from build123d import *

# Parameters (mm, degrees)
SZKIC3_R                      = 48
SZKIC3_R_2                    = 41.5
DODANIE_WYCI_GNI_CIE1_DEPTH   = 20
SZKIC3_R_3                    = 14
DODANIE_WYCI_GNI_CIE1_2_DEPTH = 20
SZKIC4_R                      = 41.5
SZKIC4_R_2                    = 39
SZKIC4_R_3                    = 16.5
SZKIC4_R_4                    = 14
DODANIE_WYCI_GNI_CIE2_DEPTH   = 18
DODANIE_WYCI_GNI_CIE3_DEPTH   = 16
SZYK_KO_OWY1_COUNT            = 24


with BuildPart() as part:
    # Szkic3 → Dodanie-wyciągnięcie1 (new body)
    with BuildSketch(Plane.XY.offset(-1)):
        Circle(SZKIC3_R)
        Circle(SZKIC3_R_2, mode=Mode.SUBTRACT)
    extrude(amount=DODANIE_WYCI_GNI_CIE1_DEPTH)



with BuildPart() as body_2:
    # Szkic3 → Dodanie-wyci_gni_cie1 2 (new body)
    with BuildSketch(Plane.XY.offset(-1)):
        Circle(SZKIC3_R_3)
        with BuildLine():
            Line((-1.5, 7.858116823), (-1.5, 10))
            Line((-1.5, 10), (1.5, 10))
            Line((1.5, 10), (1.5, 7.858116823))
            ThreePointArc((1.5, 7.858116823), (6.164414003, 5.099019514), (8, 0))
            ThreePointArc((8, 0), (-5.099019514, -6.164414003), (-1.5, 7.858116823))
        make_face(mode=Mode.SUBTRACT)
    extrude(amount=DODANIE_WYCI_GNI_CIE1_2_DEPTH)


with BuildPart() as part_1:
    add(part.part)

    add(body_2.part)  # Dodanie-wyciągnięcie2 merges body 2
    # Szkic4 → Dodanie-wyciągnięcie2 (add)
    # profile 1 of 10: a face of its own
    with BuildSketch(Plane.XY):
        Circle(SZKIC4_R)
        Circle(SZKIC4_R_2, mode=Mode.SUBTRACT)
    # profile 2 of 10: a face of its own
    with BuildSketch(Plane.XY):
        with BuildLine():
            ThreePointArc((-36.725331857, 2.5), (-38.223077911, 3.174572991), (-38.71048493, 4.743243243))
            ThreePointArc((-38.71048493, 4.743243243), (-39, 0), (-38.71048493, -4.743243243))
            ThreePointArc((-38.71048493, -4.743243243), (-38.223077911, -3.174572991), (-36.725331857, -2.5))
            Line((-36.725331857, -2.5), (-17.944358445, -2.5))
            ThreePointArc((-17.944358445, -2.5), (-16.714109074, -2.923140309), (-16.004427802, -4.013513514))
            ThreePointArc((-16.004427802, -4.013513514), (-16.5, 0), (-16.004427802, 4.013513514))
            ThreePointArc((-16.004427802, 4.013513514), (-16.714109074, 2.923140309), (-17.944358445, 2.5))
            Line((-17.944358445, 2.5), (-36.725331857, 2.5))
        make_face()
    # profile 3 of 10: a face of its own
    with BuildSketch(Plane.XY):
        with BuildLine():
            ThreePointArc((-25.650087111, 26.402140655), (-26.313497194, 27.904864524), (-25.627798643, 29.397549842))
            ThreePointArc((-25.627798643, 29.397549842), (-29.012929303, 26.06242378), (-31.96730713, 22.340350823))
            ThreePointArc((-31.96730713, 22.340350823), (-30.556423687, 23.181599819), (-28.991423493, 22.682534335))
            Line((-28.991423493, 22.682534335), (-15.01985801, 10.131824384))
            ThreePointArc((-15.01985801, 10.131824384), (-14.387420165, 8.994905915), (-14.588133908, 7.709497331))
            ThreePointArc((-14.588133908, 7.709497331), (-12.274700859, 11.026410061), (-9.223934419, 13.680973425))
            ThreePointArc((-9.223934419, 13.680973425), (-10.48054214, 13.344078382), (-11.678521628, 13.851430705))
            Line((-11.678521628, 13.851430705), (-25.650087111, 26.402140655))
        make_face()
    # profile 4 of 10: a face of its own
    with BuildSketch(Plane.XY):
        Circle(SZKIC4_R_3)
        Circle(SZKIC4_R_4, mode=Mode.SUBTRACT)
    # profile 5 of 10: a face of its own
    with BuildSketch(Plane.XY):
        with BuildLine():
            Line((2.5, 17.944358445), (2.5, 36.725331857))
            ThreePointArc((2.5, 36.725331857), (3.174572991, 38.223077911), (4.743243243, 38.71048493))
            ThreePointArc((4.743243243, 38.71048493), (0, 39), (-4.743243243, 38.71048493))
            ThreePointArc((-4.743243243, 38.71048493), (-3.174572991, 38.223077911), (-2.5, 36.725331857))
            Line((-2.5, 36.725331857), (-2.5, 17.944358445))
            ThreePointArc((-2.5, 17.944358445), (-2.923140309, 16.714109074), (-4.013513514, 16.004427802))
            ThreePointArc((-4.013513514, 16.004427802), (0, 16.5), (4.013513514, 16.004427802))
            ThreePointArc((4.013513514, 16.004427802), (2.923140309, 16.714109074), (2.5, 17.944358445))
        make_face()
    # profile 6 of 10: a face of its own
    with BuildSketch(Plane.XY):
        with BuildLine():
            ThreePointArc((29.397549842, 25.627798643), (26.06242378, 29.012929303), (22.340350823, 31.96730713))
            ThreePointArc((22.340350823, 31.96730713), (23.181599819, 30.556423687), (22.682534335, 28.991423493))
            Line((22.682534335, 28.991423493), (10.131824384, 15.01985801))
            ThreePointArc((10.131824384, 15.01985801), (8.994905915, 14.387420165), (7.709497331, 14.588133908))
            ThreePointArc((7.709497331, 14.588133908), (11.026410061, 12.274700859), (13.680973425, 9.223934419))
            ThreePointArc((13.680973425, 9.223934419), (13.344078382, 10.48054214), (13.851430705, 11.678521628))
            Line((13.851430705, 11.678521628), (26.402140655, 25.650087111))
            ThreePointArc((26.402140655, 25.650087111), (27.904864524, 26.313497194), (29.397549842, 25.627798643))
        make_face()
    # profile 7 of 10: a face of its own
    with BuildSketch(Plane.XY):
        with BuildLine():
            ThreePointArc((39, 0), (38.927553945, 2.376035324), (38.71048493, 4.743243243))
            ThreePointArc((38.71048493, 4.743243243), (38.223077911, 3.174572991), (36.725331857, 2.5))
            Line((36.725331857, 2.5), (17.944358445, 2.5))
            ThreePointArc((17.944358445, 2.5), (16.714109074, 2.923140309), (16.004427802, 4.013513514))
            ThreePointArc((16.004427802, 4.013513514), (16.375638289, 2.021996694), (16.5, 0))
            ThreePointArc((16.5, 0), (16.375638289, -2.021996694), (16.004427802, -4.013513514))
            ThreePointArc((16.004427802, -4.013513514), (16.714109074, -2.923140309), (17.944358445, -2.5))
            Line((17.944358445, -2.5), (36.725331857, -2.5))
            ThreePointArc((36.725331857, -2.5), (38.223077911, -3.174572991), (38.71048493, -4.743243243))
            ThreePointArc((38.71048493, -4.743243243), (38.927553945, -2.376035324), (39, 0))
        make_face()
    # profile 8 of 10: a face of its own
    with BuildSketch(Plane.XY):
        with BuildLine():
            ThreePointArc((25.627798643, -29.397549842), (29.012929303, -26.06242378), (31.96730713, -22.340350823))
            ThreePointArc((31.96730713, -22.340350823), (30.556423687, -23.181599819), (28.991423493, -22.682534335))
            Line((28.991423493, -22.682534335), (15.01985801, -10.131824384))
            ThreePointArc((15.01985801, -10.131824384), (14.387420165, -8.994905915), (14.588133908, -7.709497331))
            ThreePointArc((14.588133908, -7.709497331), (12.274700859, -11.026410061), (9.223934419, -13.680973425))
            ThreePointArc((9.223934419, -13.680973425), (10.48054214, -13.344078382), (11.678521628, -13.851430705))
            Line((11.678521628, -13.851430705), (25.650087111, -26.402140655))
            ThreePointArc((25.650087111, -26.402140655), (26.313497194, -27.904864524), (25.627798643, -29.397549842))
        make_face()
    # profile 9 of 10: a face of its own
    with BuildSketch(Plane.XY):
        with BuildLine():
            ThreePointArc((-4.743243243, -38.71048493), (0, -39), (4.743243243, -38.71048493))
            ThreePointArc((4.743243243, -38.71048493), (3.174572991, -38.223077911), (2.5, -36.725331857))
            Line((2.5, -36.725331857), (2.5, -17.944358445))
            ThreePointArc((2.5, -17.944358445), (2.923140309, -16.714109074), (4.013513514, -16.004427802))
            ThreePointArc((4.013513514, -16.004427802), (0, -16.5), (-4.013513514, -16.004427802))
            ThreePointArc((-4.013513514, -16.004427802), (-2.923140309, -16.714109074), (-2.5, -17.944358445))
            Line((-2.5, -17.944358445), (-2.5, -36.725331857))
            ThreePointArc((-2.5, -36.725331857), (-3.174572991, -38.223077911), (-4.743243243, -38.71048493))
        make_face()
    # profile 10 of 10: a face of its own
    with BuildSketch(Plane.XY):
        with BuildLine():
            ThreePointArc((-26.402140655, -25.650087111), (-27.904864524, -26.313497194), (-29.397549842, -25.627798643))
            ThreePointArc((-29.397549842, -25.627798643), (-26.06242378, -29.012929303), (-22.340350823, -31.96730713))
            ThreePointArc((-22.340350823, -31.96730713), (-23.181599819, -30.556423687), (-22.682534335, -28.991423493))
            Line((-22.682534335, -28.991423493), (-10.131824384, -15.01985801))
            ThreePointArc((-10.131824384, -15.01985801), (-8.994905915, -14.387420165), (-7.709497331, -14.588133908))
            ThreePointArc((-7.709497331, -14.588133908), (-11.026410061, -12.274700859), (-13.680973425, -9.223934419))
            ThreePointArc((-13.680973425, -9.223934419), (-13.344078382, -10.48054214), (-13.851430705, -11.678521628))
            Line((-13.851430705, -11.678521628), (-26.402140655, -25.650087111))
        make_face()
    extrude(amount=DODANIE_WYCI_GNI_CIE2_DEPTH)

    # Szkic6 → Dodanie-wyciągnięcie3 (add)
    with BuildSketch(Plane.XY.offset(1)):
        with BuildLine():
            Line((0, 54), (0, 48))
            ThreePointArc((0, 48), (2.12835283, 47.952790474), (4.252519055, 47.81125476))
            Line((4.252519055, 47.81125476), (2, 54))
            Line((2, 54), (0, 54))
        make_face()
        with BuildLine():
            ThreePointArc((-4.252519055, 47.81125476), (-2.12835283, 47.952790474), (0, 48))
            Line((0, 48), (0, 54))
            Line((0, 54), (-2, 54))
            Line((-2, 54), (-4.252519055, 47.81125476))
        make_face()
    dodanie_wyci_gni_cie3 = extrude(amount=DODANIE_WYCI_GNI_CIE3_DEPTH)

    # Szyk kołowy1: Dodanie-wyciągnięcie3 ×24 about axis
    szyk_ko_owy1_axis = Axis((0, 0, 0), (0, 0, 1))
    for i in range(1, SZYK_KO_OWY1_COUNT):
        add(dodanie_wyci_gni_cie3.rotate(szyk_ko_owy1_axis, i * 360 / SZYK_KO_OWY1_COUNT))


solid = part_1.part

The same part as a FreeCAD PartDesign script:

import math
import FreeCAD as App
import Part
import Sketcher
from FreeCAD import Vector
Q = App.Units.Quantity

doc = App.newDocument("Part")
body = doc.addObject("PartDesign::Body", "Body")

# Sketch on XY plane
sketch1 = body.newObject("Sketcher::SketchObject", "Sketch")
sketch1.AttachmentSupport = (doc.getObject("XY_Plane"), [""])
sketch1.MapMode = "FlatFace"
sketch1.AttachmentOffset = App.Placement(Vector(0, 0, -1), App.Rotation())
sketch1.addGeometry([
    Part.Circle(Vector(0, 0, 0), Vector(0, 0, 1), 48),
    Part.Circle(Vector(0, 0, 0), Vector(0, 0, 1), 42),
], False)
sketch1.addConstraint([
    Sketcher.Constraint("Coincident", 0, 3, -1, 1),
    Sketcher.Constraint("Coincident", 1, 3, -1, 1),
    Sketcher.Constraint("Diameter", 0, 96.0),
    Sketcher.Constraint("Diameter", 1, 83.0),
])
pad1 = body.newObject("PartDesign::Pad", "Pad")
pad1.Profile = sketch1
pad1.Length = 20
body2 = doc.addObject("PartDesign::Body", "Body001")

# Sketch on XY plane
sketch2 = body2.newObject("Sketcher::SketchObject", "Sketch001")
sketch2.AttachmentSupport = (doc.getObject("XY_Plane001"), [""])
sketch2.MapMode = "FlatFace"
sketch2.AttachmentOffset = App.Placement(Vector(0, 0, -1), App.Rotation())
sketch2.addGeometry([
    Part.Circle(Vector(0, 0, 0), Vector(0, 0, 1), 14),  # 0
    Part.ArcOfCircle(Part.Circle(Vector(0, 0, 0), Vector(0, 0, 1), 8), math.radians(101), math.radians(360)),  # 1
    Part.LineSegment(Vector(-1.5, 7.9, 0), Vector(-1.5, 10, 0)),  # 2
    Part.LineSegment(Vector(-1.5, 10, 0), Vector(1.5, 10, 0)),  # 3
    Part.LineSegment(Vector(1.5, 10, 0), Vector(1.5, 7.9, 0)),  # 4
    Part.ArcOfCircle(Part.Circle(Vector(0, 0, 0), Vector(0, 0, 1), 8), math.radians(0), math.radians(79)),  # 5
], False)
sketch2.addConstraint([
    Sketcher.Constraint("Coincident", 1, 1, 2, 1),
    Sketcher.Constraint("Coincident", 2, 2, 3, 1),
    Sketcher.Constraint("Coincident", 3, 2, 4, 1),
    Sketcher.Constraint("Coincident", 4, 2, 5, 2),
    Sketcher.Constraint("Tangent", 5, 1, 1, 2),
    Sketcher.Constraint("Vertical", 2),
    Sketcher.Constraint("Horizontal", 3),
    Sketcher.Constraint("Vertical", 4),
    Sketcher.Constraint("Coincident", 0, 3, -1, 1),
    Sketcher.Constraint("Coincident", 1, 3, -1, 1),
    Sketcher.Constraint("Equal", 1, 5),
    Sketcher.Constraint("PointOnObject", 5, 1, -1),
    Sketcher.Constraint("Horizontal", 1, 1, 4, 2),
    Sketcher.Constraint("Diameter", 0, 28.0),
    Sketcher.Constraint("Radius", 1, 8.0),
    Sketcher.Constraint("DistanceX", 3, 1, 3, 2, 3.0),
    Sketcher.Constraint("DistanceY", -1, 1, 2, 2, 10.0),
])
pad2 = body2.newObject("PartDesign::Pad", "Pad001")
pad2.Profile = sketch2
pad2.Length = 20
body.AllowCompound = True
doc.recompute()

boolean = body.newObject("PartDesign::Boolean", "Boolean")
boolean.Type = "Fuse"
boolean.addObjects([body2])

# Sketch on XY plane
sketch3 = body.newObject("Sketcher::SketchObject", "Sketch002")
sketch3.AttachmentSupport = (doc.getObject("XY_Plane"), [""])
sketch3.MapMode = "FlatFace"
sketch3.addGeometry([
    Part.Circle(Vector(0, 0, 0), Vector(0, 0, 1), 41.5),  # 0
    Part.ArcOfCircle(Part.Circle(Vector(0, 0, 0), Vector(0, 0, 1), 39), math.radians(7), math.radians(41)),  # 1
    Part.ArcOfCircle(Part.Circle(Vector(36.7, 4.5, 0), Vector(0, 0, 1), 2), math.radians(-90), math.radians(7)),  # 2
    Part.LineSegment(Vector(36.7, 2.5, 0), Vector(17.9, 2.5, 0)),  # 3
    Part.ArcOfCircle(Part.Circle(Vector(17.9, 4.5, 0), Vector(0, 0, 1), 2), math.radians(-166), math.radians(-90)),  # 4
    Part.ArcOfCircle(Part.Circle(Vector(0, 0, 0), Vector(0, 0, 1), 16.5), math.radians(14.08), math.radians(33.99)),  # 5
    Part.ArcOfCircle(Part.Circle(Vector(15.3, 10.3, 0), Vector(0, 0, 1), 2), math.radians(138), math.radians(214)),  # 6
    Part.LineSegment(Vector(13.9, 11.7, 0), Vector(26.4, 25.7, 0)),  # 7
    Part.ArcOfCircle(Part.Circle(Vector(27.9, 24.3, 0), Vector(0, 0, 1), 2), math.radians(41), math.radians(138)),  # 8
    Part.ArcOfCircle(Part.Circle(Vector(0, 0, 0), Vector(0, 0, 1), 39), math.radians(55), math.radians(83)),  # 9
    Part.ArcOfCircle(Part.Circle(Vector(21.2, 30.3, 0), Vector(0, 0, 1), 2), math.radians(-42), math.radians(55)),  # 10
    Part.LineSegment(Vector(22.7, 29, 0), Vector(10.1, 15, 0)),  # 11
    Part.ArcOfCircle(Part.Circle(Vector(8.6, 16.4, 0), Vector(0, 0, 1), 2), math.radians(-118), math.radians(-42)),  # 12
    Part.ArcOfCircle(Part.Circle(Vector(0, 0, 0), Vector(0, 0, 1), 16.5), math.radians(62.14), math.radians(75.92)),  # 13
    Part.ArcOfCircle(Part.Circle(Vector(4.5, 17.9, 0), Vector(0, 0, 1), 2), math.radians(180), math.radians(256)),  # 14
    Part.LineSegment(Vector(2.5, 17.9, 0), Vector(2.5, 36.7, 0)),  # 15
    Part.ArcOfCircle(Part.Circle(Vector(4.5, 36.7, 0), Vector(0, 0, 1), 2), math.radians(83), math.radians(180)),  # 16
    Part.ArcOfCircle(Part.Circle(Vector(0, 0, 0), Vector(0, 0, 1), 39), math.radians(97), math.radians(131)),  # 17
    Part.ArcOfCircle(Part.Circle(Vector(-4.5, 36.7, 0), Vector(0, 0, 1), 2), math.radians(0), math.radians(97)),  # 18
    Part.LineSegment(Vector(-2.5, 36.7, 0), Vector(-2.5, 17.9, 0)),  # 19
    Part.ArcOfCircle(Part.Circle(Vector(-4.5, 17.9, 0), Vector(0, 0, 1), 2), math.radians(-76), math.radians(0)),  # 20
    Part.ArcOfCircle(Part.Circle(Vector(0, 0, 0), Vector(0, 0, 1), 16.5), math.radians(104.08), math.radians(123.99)),  # 21
    Part.ArcOfCircle(Part.Circle(Vector(-10.3, 15.3, 0), Vector(0, 0, 1), 2), math.radians(-132), math.radians(-56)),  # 22
    Part.LineSegment(Vector(-11.7, 13.9, 0), Vector(-25.7, 26.4, 0)),  # 23
    Part.ArcOfCircle(Part.Circle(Vector(-24.3, 27.9, 0), Vector(0, 0, 1), 2), math.radians(131), math.radians(228)),  # 24
    Part.ArcOfCircle(Part.Circle(Vector(0, 0, 0), Vector(0, 0, 1), 39), math.radians(145), math.radians(173)),  # 25
    Part.ArcOfCircle(Part.Circle(Vector(-30.3, 21.2, 0), Vector(0, 0, 1), 2), math.radians(48), math.radians(145)),  # 26
    Part.LineSegment(Vector(-29, 22.7, 0), Vector(-15, 10.1, 0)),  # 27
    Part.ArcOfCircle(Part.Circle(Vector(-16.4, 8.6, 0), Vector(0, 0, 1), 2), math.radians(-28), math.radians(48)),  # 28
    Part.ArcOfCircle(Part.Circle(Vector(0, 0, 0), Vector(0, 0, 1), 16.5), math.radians(152.14), math.radians(165.92)),  # 29
    Part.ArcOfCircle(Part.Circle(Vector(-17.9, 4.5, 0), Vector(0, 0, 1), 2), math.radians(-90), math.radians(-14)),  # 30
    Part.LineSegment(Vector(-17.9, 2.5, 0), Vector(-36.7, 2.5, 0)),  # 31
    Part.ArcOfCircle(Part.Circle(Vector(-36.7, 4.5, 0), Vector(0, 0, 1), 2), math.radians(173), math.radians(270)),  # 32
    Part.ArcOfCircle(Part.Circle(Vector(0, 0, 0), Vector(0, 0, 1), 39), math.radians(-173), math.radians(-139)),  # 33
    Part.ArcOfCircle(Part.Circle(Vector(-36.7, -4.5, 0), Vector(0, 0, 1), 2), math.radians(90), math.radians(187)),  # 34
    Part.LineSegment(Vector(-36.7, -2.5, 0), Vector(-17.9, -2.5, 0)),  # 35
    Part.ArcOfCircle(Part.Circle(Vector(-17.9, -4.5, 0), Vector(0, 0, 1), 2), math.radians(14), math.radians(90)),  # 36
    Part.ArcOfCircle(Part.Circle(Vector(0, 0, 0), Vector(0, 0, 1), 16.5), math.radians(-165.92), math.radians(-146.01)),  # 37
    Part.ArcOfCircle(Part.Circle(Vector(-15.3, -10.3, 0), Vector(0, 0, 1), 2), math.radians(-42), math.radians(34)),  # 38
    Part.LineSegment(Vector(-13.9, -11.7, 0), Vector(-26.4, -25.7, 0)),  # 39
    Part.ArcOfCircle(Part.Circle(Vector(-27.9, -24.3, 0), Vector(0, 0, 1), 2), math.radians(-139), math.radians(-42)),  # 40
    Part.ArcOfCircle(Part.Circle(Vector(0, 0, 0), Vector(0, 0, 1), 39), math.radians(-125), math.radians(-97)),  # 41
    Part.ArcOfCircle(Part.Circle(Vector(-21.2, -30.3, 0), Vector(0, 0, 1), 2), math.radians(138), math.radians(235)),  # 42
    Part.LineSegment(Vector(-22.7, -29, 0), Vector(-10.1, -15, 0)),  # 43
    Part.ArcOfCircle(Part.Circle(Vector(-8.6, -16.4, 0), Vector(0, 0, 1), 2), math.radians(62), math.radians(138)),  # 44
    Part.ArcOfCircle(Part.Circle(Vector(0, 0, 0), Vector(0, 0, 1), 16.5), math.radians(-117.86), math.radians(-104.08)),  # 45
    Part.ArcOfCircle(Part.Circle(Vector(-4.5, -17.9, 0), Vector(0, 0, 1), 2), math.radians(0), math.radians(76)),  # 46
    Part.LineSegment(Vector(-2.5, -17.9, 0), Vector(-2.5, -36.7, 0)),  # 47
    Part.ArcOfCircle(Part.Circle(Vector(-4.5, -36.7, 0), Vector(0, 0, 1), 2), math.radians(-97), math.radians(0)),  # 48
    Part.ArcOfCircle(Part.Circle(Vector(0, 0, 0), Vector(0, 0, 1), 39), math.radians(-83), math.radians(-49)),  # 49
    Part.ArcOfCircle(Part.Circle(Vector(4.5, -36.7, 0), Vector(0, 0, 1), 2), math.radians(-180), math.radians(-83)),  # 50
    Part.LineSegment(Vector(2.5, -36.7, 0), Vector(2.5, -17.9, 0)),  # 51
    Part.ArcOfCircle(Part.Circle(Vector(4.5, -17.9, 0), Vector(0, 0, 1), 2), math.radians(104), math.radians(180)),  # 52
    Part.ArcOfCircle(Part.Circle(Vector(0, 0, 0), Vector(0, 0, 1), 16.5), math.radians(-75.92), math.radians(-56.01)),  # 53
    Part.ArcOfCircle(Part.Circle(Vector(10.3, -15.3, 0), Vector(0, 0, 1), 2), math.radians(48), math.radians(124)),  # 54
    Part.LineSegment(Vector(11.7, -13.9, 0), Vector(25.7, -26.4, 0)),  # 55
    Part.ArcOfCircle(Part.Circle(Vector(24.3, -27.9, 0), Vector(0, 0, 1), 2), math.radians(-49), math.radians(48)),  # 56
    Part.ArcOfCircle(Part.Circle(Vector(0, 0, 0), Vector(0, 0, 1), 39), math.radians(-35), math.radians(-7)),  # 57
    Part.ArcOfCircle(Part.Circle(Vector(30.3, -21.2, 0), Vector(0, 0, 1), 2), math.radians(-132), math.radians(-35)),  # 58
    Part.LineSegment(Vector(29, -22.7, 0), Vector(15, -10.1, 0)),  # 59
    Part.ArcOfCircle(Part.Circle(Vector(16.4, -8.6, 0), Vector(0, 0, 1), 2), math.radians(152), math.radians(228)),  # 60
    Part.ArcOfCircle(Part.Circle(Vector(0, 0, 0), Vector(0, 0, 1), 16.5), math.radians(-27.86), math.radians(-14.08)),  # 61
    Part.ArcOfCircle(Part.Circle(Vector(17.9, -4.5, 0), Vector(0, 0, 1), 2), math.radians(90), math.radians(166)),  # 62
    Part.LineSegment(Vector(17.9, -2.5, 0), Vector(36.7, -2.5, 0)),  # 63
    Part.ArcOfCircle(Part.Circle(Vector(36.7, -4.5, 0), Vector(0, 0, 1), 2), math.radians(-7), math.radians(90)),  # 64
    Part.Circle(Vector(0, 0, 0), Vector(0, 0, 1), 14),  # 65
], False)
sketch3.addConstraint([
    Sketcher.Constraint("Tangent", 1, 1, 2, 2),
    Sketcher.Constraint("Tangent", 2, 1, 3, 1),
    Sketcher.Constraint("Tangent", 3, 2, 4, 2),
    Sketcher.Constraint("Tangent", 4, 1, 5, 1),
    Sketcher.Constraint("Tangent", 5, 2, 6, 2),
    Sketcher.Constraint("Tangent", 6, 1, 7, 1),
    Sketcher.Constraint("Tangent", 7, 2, 8, 2),
    Sketcher.Constraint("Tangent", 8, 1, 1, 2),
    Sketcher.Constraint("Tangent", 9, 1, 10, 2),
    Sketcher.Constraint("Tangent", 10, 1, 11, 1),
    Sketcher.Constraint("Tangent", 11, 2, 12, 2),
    Sketcher.Constraint("Tangent", 12, 1, 13, 1),
    Sketcher.Constraint("Tangent", 13, 2, 14, 2),
    Sketcher.Constraint("Tangent", 14, 1, 15, 1),
    Sketcher.Constraint("Tangent", 15, 2, 16, 2),
    Sketcher.Constraint("Tangent", 16, 1, 9, 2),
    Sketcher.Constraint("Tangent", 17, 1, 18, 2),
    Sketcher.Constraint("Tangent", 18, 1, 19, 1),
    Sketcher.Constraint("Tangent", 19, 2, 20, 2),
    Sketcher.Constraint("Tangent", 20, 1, 21, 1),
    Sketcher.Constraint("Tangent", 21, 2, 22, 2),
    Sketcher.Constraint("Tangent", 22, 1, 23, 1),
    Sketcher.Constraint("Tangent", 23, 2, 24, 2),
    Sketcher.Constraint("Tangent", 24, 1, 17, 2),
    Sketcher.Constraint("Tangent", 25, 1, 26, 2),
    Sketcher.Constraint("Tangent", 26, 1, 27, 1),
    Sketcher.Constraint("Tangent", 27, 2, 28, 2),
    Sketcher.Constraint("Tangent", 28, 1, 29, 1),
    Sketcher.Constraint("Tangent", 29, 2, 30, 2),
    Sketcher.Constraint("Tangent", 30, 1, 31, 1),
    Sketcher.Constraint("Tangent", 31, 2, 32, 2),
    Sketcher.Constraint("Tangent", 32, 1, 25, 2),
    Sketcher.Constraint("Tangent", 33, 1, 34, 2),
    Sketcher.Constraint("Tangent", 34, 1, 35, 1),
    Sketcher.Constraint("Tangent", 35, 2, 36, 2),
    Sketcher.Constraint("Tangent", 36, 1, 37, 1),
    Sketcher.Constraint("Tangent", 37, 2, 38, 2),
    Sketcher.Constraint("Tangent", 38, 1, 39, 1),
    Sketcher.Constraint("Tangent", 39, 2, 40, 2),
    Sketcher.Constraint("Tangent", 40, 1, 33, 2),
    Sketcher.Constraint("Tangent", 41, 1, 42, 2),
    Sketcher.Constraint("Tangent", 42, 1, 43, 1),
    Sketcher.Constraint("Tangent", 43, 2, 44, 2),
    Sketcher.Constraint("Tangent", 44, 1, 45, 1),
    Sketcher.Constraint("Tangent", 45, 2, 46, 2),
    Sketcher.Constraint("Tangent", 46, 1, 47, 1),
    Sketcher.Constraint("Tangent", 47, 2, 48, 2),
    Sketcher.Constraint("Tangent", 48, 1, 41, 2),
    Sketcher.Constraint("Tangent", 49, 1, 50, 2),
    Sketcher.Constraint("Tangent", 50, 1, 51, 1),
    Sketcher.Constraint("Tangent", 51, 2, 52, 2),
    Sketcher.Constraint("Tangent", 52, 1, 53, 1),
    Sketcher.Constraint("Tangent", 53, 2, 54, 2),
    Sketcher.Constraint("Tangent", 54, 1, 55, 1),
    Sketcher.Constraint("Tangent", 55, 2, 56, 2),
    Sketcher.Constraint("Tangent", 56, 1, 49, 2),
    Sketcher.Constraint("Tangent", 57, 1, 58, 2),
    Sketcher.Constraint("Tangent", 58, 1, 59, 1),
    Sketcher.Constraint("Tangent", 59, 2, 60, 2),
    Sketcher.Constraint("Tangent", 60, 1, 61, 1),
    Sketcher.Constraint("Tangent", 61, 2, 62, 2),
    Sketcher.Constraint("Tangent", 62, 1, 63, 1),
    Sketcher.Constraint("Tangent", 63, 2, 64, 2),
    Sketcher.Constraint("Tangent", 64, 1, 57, 2),
    Sketcher.Constraint("Horizontal", 3),
    Sketcher.Constraint("Vertical", 15),
    Sketcher.Constraint("Vertical", 19),
    Sketcher.Constraint("Horizontal", 31),
    Sketcher.Constraint("Horizontal", 35),
    Sketcher.Constraint("Vertical", 47),
    Sketcher.Constraint("Vertical", 51),
    Sketcher.Constraint("Horizontal", 63),
    Sketcher.Constraint("Coincident", 0, 3, -1, 1),
    Sketcher.Constraint("Coincident", 1, 3, -1, 1),
    Sketcher.Constraint("Coincident", 5, 3, -1, 1),
    Sketcher.Constraint("Coincident", 9, 3, -1, 1),
    Sketcher.Constraint("Coincident", 13, 3, -1, 1),
    Sketcher.Constraint("Coincident", 17, 3, -1, 1),
    Sketcher.Constraint("Coincident", 21, 3, -1, 1),
    Sketcher.Constraint("Coincident", 25, 3, -1, 1),
    Sketcher.Constraint("Coincident", 29, 3, -1, 1),
    Sketcher.Constraint("Coincident", 33, 3, -1, 1),
    Sketcher.Constraint("Coincident", 37, 3, -1, 1),
    Sketcher.Constraint("Coincident", 41, 3, -1, 1),
    Sketcher.Constraint("Coincident", 45, 3, -1, 1),
    Sketcher.Constraint("Coincident", 49, 3, -1, 1),
    Sketcher.Constraint("Coincident", 53, 3, -1, 1),
    Sketcher.Constraint("Coincident", 57, 3, -1, 1),
    Sketcher.Constraint("Coincident", 61, 3, -1, 1),
    Sketcher.Constraint("Coincident", 65, 3, -1, 1),
    Sketcher.Constraint("Equal", 2, 4),
    Sketcher.Constraint("Equal", 4, 6),
    Sketcher.Constraint("Equal", 6, 8),
    Sketcher.Constraint("Equal", 1, 9),
    Sketcher.Constraint("Equal", 8, 10),
    Sketcher.Constraint("Equal", 10, 12),
    Sketcher.Constraint("Equal", 5, 13),
    Sketcher.Constraint("Equal", 12, 14),
    Sketcher.Constraint("Equal", 14, 16),
    Sketcher.Constraint("Equal", 9, 17),
    Sketcher.Constraint("Equal", 16, 18),
    Sketcher.Constraint("Equal", 18, 20),
    Sketcher.Constraint("Equal", 13, 21),
    Sketcher.Constraint("Equal", 20, 22),
    Sketcher.Constraint("Equal", 22, 24),
    Sketcher.Constraint("Equal", 17, 25),
    Sketcher.Constraint("Equal", 24, 26),
    Sketcher.Constraint("Equal", 26, 28),
    Sketcher.Constraint("Equal", 21, 29),
    Sketcher.Constraint("Equal", 28, 30),
    Sketcher.Constraint("Equal", 30, 32),
    Sketcher.Constraint("Equal", 25, 33),
    Sketcher.Constraint("Equal", 32, 34),
    Sketcher.Constraint("Equal", 34, 36),
    Sketcher.Constraint("Equal", 29, 37),
    Sketcher.Constraint("Equal", 36, 38),
    Sketcher.Constraint("Equal", 38, 40),
    Sketcher.Constraint("Equal", 33, 41),
    Sketcher.Constraint("Equal", 40, 42),
    Sketcher.Constraint("Equal", 42, 44),
    Sketcher.Constraint("Equal", 37, 45),
    Sketcher.Constraint("Equal", 44, 46),
    Sketcher.Constraint("Equal", 46, 48),
    Sketcher.Constraint("Equal", 41, 49),
    Sketcher.Constraint("Equal", 48, 50),
    Sketcher.Constraint("Equal", 50, 52),
    Sketcher.Constraint("Equal", 45, 53),
    Sketcher.Constraint("Equal", 52, 54),
    Sketcher.Constraint("Equal", 54, 56),
    Sketcher.Constraint("Equal", 49, 57),
    Sketcher.Constraint("Equal", 56, 58),
    Sketcher.Constraint("Equal", 58, 60),
    Sketcher.Constraint("Equal", 53, 61),
    Sketcher.Constraint("Equal", 60, 62),
    Sketcher.Constraint("Equal", 62, 64),
    Sketcher.Constraint("Symmetric", 6, 1, 38, 1, -1, 1),
    Sketcher.Constraint("Symmetric", 10, 1, 42, 1, -1, 1),
    Sketcher.Constraint("Symmetric", 22, 1, 54, 1, -1, 1),
    Sketcher.Constraint("Symmetric", 26, 1, 58, 1, -1, 1),
    Sketcher.Constraint("Parallel", 7, 11),
    Sketcher.Constraint("Perpendicular", 11, 23),
    Sketcher.Constraint("Parallel", 23, 27),
    Sketcher.Constraint("Horizontal", 16, 3, 18, 3),
    Sketcher.Constraint("Horizontal", 4, 3, 30, 3),
    Sketcher.Constraint("Horizontal", 48, 3, 50, 3),
    Sketcher.Constraint("Horizontal", 36, 3, 62, 3),
    Sketcher.Constraint("Vertical", 32, 3, 34, 3),
    Sketcher.Constraint("Vertical", 20, 3, 46, 3),
    Sketcher.Constraint("Equal", 63, 15),
    Sketcher.Constraint("Equal", 7, 11),
    Sketcher.Constraint("Equal", 11, 23),
    Sketcher.Constraint("Equal", 23, 27),
    Sketcher.Constraint("Diameter", 0, 83.0),
    Sketcher.Constraint("Diameter", 65, 28.0),
    Sketcher.Constraint("Radius", 1, 39.0),
    Sketcher.Constraint("Radius", 2, 2.0),
    Sketcher.Constraint("Radius", 5, 16.5),
    Sketcher.Constraint("DistanceY", -1, 1, 2, 3, 4.5),
    Sketcher.Constraint("DistanceY", -1, 1, 8, 1, 25.627799),
    Sketcher.Constraint("DistanceX", -1, 1, 10, 3, 21.194692),
])
pad3 = body.newObject("PartDesign::Pad", "Pad002")
pad3.Profile = sketch3
pad3.Length = 18

# Sketch on XY plane
sketch4 = body.newObject("Sketcher::SketchObject", "Sketch003")
sketch4.AttachmentSupport = (doc.getObject("XY_Plane"), [""])
sketch4.MapMode = "FlatFace"
sketch4.AttachmentOffset = App.Placement(Vector(0, 0, 1), App.Rotation())
sketch4.addGeometry([
    Part.ArcOfCircle(Part.Circle(Vector(0, 0, 0), Vector(0, 0, 1), 48), math.radians(84.92), math.radians(90)),  # 0
    Part.LineSegment(Vector(4.3, 47.8, 0), Vector(2, 54, 0)),  # 1
    Part.LineSegment(Vector(2, 54, 0), Vector(-2, 54, 0)),  # 2
    Part.LineSegment(Vector(-2, 54, 0), Vector(-4.3, 47.8, 0)),  # 3
    Part.ArcOfCircle(Part.Circle(Vector(0, 0, 0), Vector(0, 0, 1), 48), math.radians(90), math.radians(95.08)),  # 4
], False)
sketch4.addConstraint([
    Sketcher.Constraint("Coincident", 0, 1, 1, 1),
    Sketcher.Constraint("Coincident", 1, 2, 2, 1),
    Sketcher.Constraint("Coincident", 2, 2, 3, 1),
    Sketcher.Constraint("Coincident", 3, 2, 4, 2),
    Sketcher.Constraint("Tangent", 4, 1, 0, 2),
    Sketcher.Constraint("Horizontal", 2),
    Sketcher.Constraint("Coincident", 0, 3, -1, 1),
    Sketcher.Constraint("Equal", 0, 4),
    Sketcher.Constraint("PointOnObject", 4, 1, -2),
    Sketcher.Constraint("Horizontal", 0, 1, 3, 2),
    Sketcher.Constraint("Equal", 1, 3),
    Sketcher.Constraint("Radius", 0, 48.0),
    Sketcher.Constraint("DistanceX", 2, 2, 2, 1, 4.0),
    Sketcher.Constraint("Angle", 1, Q("110 deg")),
    Sketcher.Constraint("DistanceY", -1, 1, 1, 2, 54.0),
])
pad4 = body.newObject("PartDesign::Pad", "Pad003")
pad4.Profile = sketch4
pad4.Length = 16
doc.recompute()

polarpattern = body.newObject("PartDesign::PolarPattern", "PolarPattern")
polarpattern.Originals = [pad4]
polarpattern.Axis = (doc.getObject("Z_Axis"), [""])
polarpattern.Angle = 360
polarpattern.Occurrences = 24
body.Tip = polarpattern

doc.recompute()
